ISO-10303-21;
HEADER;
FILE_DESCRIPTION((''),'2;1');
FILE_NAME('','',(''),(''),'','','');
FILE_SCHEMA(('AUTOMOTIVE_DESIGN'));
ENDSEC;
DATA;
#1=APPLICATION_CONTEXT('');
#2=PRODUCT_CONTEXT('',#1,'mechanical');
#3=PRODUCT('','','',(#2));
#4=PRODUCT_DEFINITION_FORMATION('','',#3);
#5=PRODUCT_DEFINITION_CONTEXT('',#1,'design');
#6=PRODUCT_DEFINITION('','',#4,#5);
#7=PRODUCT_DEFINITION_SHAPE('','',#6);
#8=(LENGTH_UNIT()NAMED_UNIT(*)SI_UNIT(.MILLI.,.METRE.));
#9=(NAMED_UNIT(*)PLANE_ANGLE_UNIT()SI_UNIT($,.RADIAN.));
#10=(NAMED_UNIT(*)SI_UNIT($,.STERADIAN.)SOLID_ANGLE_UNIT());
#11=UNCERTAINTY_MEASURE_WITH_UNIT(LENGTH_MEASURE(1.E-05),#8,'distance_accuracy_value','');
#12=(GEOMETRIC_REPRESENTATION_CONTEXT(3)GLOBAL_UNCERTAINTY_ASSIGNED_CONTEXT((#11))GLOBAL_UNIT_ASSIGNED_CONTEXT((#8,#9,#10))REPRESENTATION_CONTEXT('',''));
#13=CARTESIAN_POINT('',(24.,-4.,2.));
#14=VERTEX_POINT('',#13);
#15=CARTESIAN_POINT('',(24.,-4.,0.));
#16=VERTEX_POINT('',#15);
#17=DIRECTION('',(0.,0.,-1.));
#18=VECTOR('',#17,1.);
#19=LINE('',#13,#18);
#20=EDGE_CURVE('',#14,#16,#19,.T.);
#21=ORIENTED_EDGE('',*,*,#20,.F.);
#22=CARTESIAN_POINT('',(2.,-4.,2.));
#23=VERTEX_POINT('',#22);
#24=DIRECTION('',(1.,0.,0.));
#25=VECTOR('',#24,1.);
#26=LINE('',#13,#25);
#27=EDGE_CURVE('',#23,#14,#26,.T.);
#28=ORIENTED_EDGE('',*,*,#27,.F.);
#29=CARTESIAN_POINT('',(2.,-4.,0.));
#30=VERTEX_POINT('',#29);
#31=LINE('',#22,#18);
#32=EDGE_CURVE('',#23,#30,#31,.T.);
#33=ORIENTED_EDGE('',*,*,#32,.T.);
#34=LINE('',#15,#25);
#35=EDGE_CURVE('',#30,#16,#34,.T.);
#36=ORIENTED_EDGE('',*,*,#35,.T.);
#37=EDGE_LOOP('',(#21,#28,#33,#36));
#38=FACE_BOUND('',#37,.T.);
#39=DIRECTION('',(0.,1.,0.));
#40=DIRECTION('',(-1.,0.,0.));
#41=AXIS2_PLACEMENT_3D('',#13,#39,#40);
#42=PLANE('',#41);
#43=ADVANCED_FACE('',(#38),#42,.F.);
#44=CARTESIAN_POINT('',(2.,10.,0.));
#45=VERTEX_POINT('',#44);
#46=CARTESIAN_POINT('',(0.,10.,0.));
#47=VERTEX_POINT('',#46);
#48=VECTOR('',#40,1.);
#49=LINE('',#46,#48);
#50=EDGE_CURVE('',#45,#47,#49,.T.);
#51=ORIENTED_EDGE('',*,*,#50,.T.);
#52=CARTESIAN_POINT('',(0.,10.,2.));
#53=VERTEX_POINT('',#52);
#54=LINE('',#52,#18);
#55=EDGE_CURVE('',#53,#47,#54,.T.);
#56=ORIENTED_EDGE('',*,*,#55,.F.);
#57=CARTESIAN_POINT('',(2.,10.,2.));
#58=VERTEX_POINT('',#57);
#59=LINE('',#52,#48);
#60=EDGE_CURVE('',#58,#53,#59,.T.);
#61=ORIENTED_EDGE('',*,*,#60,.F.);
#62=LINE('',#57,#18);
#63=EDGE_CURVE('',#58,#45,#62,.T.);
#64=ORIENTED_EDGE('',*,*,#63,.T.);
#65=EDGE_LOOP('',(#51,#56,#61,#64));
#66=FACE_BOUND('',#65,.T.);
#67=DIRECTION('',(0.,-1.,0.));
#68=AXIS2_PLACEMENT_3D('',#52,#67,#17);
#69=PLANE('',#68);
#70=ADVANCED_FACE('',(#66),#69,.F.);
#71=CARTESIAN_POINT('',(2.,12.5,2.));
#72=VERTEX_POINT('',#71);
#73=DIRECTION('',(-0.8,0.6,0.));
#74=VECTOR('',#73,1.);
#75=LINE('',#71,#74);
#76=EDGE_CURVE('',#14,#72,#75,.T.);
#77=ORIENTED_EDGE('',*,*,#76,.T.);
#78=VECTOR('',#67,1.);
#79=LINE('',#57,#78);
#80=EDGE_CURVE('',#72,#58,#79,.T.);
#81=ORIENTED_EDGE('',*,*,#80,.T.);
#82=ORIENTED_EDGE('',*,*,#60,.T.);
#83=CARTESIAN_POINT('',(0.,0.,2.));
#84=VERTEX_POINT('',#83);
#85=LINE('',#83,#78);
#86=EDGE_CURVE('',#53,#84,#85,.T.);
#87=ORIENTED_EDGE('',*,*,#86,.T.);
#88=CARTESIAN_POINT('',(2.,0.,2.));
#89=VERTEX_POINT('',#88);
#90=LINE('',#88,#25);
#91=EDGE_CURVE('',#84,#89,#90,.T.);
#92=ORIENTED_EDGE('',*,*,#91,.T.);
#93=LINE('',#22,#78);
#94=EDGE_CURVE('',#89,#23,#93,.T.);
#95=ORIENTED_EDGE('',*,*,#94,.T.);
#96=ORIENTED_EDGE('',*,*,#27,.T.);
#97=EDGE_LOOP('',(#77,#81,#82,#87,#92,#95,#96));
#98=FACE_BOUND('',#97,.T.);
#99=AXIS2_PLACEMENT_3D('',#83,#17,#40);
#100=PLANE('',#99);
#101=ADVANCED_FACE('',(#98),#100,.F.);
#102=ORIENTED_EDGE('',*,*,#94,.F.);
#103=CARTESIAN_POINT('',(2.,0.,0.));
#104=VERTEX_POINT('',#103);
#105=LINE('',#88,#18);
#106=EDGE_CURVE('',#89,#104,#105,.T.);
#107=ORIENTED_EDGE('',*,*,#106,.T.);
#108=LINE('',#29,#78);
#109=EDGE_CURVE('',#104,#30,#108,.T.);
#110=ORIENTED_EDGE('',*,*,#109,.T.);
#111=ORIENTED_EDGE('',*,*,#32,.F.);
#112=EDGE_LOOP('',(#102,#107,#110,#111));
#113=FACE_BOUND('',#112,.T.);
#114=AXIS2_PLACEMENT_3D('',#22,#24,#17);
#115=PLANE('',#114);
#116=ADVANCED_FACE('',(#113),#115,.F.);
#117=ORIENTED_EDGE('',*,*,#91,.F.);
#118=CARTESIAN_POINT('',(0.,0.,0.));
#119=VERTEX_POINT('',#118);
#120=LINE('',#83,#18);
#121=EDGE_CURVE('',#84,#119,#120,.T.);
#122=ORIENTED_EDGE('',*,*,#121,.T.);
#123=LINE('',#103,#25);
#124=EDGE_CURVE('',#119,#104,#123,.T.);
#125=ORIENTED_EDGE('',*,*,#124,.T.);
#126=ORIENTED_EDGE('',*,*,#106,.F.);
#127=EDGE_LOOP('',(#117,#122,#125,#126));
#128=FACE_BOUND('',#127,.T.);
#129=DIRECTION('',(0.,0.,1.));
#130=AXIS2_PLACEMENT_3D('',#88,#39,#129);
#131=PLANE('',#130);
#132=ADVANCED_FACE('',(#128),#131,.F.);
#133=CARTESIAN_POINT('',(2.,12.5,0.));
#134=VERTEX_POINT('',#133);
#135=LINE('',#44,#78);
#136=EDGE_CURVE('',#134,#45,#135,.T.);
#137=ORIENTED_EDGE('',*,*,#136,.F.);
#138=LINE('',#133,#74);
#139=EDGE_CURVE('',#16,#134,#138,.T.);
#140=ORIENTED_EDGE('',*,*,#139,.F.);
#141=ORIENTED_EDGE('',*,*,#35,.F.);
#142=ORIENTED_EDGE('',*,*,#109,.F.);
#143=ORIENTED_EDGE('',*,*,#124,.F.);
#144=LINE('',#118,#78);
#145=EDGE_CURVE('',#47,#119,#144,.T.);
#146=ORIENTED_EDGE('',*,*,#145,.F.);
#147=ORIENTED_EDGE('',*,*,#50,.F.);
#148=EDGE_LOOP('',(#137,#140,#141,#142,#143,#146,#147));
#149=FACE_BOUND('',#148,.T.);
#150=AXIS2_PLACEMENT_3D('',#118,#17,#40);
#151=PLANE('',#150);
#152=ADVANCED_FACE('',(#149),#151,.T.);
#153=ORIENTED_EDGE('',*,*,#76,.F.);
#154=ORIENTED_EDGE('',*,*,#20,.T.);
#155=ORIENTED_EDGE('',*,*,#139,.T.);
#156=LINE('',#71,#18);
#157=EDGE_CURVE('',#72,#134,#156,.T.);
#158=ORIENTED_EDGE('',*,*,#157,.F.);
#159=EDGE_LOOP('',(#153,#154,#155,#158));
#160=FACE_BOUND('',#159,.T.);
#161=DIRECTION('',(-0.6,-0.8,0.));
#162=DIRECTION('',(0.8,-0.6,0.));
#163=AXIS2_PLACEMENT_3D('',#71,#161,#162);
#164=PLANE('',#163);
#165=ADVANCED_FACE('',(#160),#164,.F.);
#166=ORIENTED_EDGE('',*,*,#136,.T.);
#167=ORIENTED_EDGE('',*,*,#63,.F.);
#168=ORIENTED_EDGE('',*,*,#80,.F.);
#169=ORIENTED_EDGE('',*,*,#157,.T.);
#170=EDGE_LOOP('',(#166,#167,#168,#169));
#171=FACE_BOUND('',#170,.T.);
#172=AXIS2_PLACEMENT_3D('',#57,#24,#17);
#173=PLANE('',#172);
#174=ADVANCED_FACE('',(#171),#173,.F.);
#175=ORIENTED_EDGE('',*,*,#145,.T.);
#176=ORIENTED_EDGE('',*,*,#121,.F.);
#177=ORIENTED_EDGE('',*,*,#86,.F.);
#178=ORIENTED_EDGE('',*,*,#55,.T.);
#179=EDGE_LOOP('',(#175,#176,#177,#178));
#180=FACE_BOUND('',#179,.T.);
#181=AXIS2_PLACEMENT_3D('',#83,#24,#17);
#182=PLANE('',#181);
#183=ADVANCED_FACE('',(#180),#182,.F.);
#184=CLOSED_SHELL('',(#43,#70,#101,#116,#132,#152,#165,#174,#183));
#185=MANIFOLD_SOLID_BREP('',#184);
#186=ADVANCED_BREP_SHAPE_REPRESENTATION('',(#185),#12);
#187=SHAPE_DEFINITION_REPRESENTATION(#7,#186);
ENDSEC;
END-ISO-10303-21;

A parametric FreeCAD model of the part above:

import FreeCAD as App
import Part
import Sketcher

doc = App.newDocument("Part")
body = doc.addObject("PartDesign::Body", "Body")

# Sketch on XY plane
sketch1 = body.newObject("Sketcher::SketchObject", "Sketch")
sketch1.AttachmentSupport = (doc.getObject("XY_Plane"), [""])
sketch1.MapMode = "FlatFace"
sketch1.addGeometry(Part.LineSegment(App.Vector(0, 10, 0), App.Vector(0, 0, 0)), False)
sketch1.addGeometry(Part.LineSegment(App.Vector(0, 0, 0), App.Vector(2, 0, 0)), False)
sketch1.addGeometry(Part.LineSegment(App.Vector(2, 0, 0), App.Vector(2, -4, 0)), False)
sketch1.addGeometry(Part.LineSegment(App.Vector(2, -4, 0), App.Vector(24, -4, 0)), False)
sketch1.addGeometry(Part.LineSegment(App.Vector(24, -4, 0), App.Vector(2, 12.5, 0)), False)
sketch1.addGeometry(Part.LineSegment(App.Vector(2, 12.5, 0), App.Vector(2, 10, 0)), False)
sketch1.addGeometry(Part.LineSegment(App.Vector(2, 10, 0), App.Vector(0, 10, 0)), False)
sketch1.addConstraint(Sketcher.Constraint("Coincident", 0, 2, 1, 1))
sketch1.addConstraint(Sketcher.Constraint("Coincident", 1, 2, 2, 1))
sketch1.addConstraint(Sketcher.Constraint("Coincident", 2, 2, 3, 1))
sketch1.addConstraint(Sketcher.Constraint("Coincident", 3, 2, 4, 1))
sketch1.addConstraint(Sketcher.Constraint("Coincident", 4, 2, 5, 1))
sketch1.addConstraint(Sketcher.Constraint("Coincident", 5, 2, 6, 1))
sketch1.addConstraint(Sketcher.Constraint("Coincident", 6, 2, 0, 1))
sketch1.addConstraint(Sketcher.Constraint("Vertical", 0))
sketch1.addConstraint(Sketcher.Constraint("Horizontal", 1))
sketch1.addConstraint(Sketcher.Constraint("Vertical", 2))
sketch1.addConstraint(Sketcher.Constraint("Horizontal", 3))
sketch1.addConstraint(Sketcher.Constraint("Vertical", 5))
sketch1.addConstraint(Sketcher.Constraint("Horizontal", 6))
sketch1.addConstraint(Sketcher.Constraint("Coincident", 0, 2, -1, 1))
sketch1.addConstraint(Sketcher.Constraint("Vertical", 2, 2, 4, 2))
sketch1.addConstraint(Sketcher.Constraint("DistanceX", 1, 1, 1, 2, 2.0))
sketch1.addConstraint(Sketcher.Constraint("DistanceX", 3, 1, 3, 2, 22.0))
sketch1.addConstraint(Sketcher.Constraint("DistanceY", 0, 2, 0, 1, 10.0))
sketch1.addConstraint(Sketcher.Constraint("DistanceY", 2, 2, 2, 1, 4.0))
sketch1.addConstraint(Sketcher.Constraint("DistanceY", 5, 2, 5, 1, 2.5))
pad1 = body.newObject("PartDesign::Pad", "Pad")
pad1.Profile = sketch1
pad1.Length = 2

doc.recompute()
